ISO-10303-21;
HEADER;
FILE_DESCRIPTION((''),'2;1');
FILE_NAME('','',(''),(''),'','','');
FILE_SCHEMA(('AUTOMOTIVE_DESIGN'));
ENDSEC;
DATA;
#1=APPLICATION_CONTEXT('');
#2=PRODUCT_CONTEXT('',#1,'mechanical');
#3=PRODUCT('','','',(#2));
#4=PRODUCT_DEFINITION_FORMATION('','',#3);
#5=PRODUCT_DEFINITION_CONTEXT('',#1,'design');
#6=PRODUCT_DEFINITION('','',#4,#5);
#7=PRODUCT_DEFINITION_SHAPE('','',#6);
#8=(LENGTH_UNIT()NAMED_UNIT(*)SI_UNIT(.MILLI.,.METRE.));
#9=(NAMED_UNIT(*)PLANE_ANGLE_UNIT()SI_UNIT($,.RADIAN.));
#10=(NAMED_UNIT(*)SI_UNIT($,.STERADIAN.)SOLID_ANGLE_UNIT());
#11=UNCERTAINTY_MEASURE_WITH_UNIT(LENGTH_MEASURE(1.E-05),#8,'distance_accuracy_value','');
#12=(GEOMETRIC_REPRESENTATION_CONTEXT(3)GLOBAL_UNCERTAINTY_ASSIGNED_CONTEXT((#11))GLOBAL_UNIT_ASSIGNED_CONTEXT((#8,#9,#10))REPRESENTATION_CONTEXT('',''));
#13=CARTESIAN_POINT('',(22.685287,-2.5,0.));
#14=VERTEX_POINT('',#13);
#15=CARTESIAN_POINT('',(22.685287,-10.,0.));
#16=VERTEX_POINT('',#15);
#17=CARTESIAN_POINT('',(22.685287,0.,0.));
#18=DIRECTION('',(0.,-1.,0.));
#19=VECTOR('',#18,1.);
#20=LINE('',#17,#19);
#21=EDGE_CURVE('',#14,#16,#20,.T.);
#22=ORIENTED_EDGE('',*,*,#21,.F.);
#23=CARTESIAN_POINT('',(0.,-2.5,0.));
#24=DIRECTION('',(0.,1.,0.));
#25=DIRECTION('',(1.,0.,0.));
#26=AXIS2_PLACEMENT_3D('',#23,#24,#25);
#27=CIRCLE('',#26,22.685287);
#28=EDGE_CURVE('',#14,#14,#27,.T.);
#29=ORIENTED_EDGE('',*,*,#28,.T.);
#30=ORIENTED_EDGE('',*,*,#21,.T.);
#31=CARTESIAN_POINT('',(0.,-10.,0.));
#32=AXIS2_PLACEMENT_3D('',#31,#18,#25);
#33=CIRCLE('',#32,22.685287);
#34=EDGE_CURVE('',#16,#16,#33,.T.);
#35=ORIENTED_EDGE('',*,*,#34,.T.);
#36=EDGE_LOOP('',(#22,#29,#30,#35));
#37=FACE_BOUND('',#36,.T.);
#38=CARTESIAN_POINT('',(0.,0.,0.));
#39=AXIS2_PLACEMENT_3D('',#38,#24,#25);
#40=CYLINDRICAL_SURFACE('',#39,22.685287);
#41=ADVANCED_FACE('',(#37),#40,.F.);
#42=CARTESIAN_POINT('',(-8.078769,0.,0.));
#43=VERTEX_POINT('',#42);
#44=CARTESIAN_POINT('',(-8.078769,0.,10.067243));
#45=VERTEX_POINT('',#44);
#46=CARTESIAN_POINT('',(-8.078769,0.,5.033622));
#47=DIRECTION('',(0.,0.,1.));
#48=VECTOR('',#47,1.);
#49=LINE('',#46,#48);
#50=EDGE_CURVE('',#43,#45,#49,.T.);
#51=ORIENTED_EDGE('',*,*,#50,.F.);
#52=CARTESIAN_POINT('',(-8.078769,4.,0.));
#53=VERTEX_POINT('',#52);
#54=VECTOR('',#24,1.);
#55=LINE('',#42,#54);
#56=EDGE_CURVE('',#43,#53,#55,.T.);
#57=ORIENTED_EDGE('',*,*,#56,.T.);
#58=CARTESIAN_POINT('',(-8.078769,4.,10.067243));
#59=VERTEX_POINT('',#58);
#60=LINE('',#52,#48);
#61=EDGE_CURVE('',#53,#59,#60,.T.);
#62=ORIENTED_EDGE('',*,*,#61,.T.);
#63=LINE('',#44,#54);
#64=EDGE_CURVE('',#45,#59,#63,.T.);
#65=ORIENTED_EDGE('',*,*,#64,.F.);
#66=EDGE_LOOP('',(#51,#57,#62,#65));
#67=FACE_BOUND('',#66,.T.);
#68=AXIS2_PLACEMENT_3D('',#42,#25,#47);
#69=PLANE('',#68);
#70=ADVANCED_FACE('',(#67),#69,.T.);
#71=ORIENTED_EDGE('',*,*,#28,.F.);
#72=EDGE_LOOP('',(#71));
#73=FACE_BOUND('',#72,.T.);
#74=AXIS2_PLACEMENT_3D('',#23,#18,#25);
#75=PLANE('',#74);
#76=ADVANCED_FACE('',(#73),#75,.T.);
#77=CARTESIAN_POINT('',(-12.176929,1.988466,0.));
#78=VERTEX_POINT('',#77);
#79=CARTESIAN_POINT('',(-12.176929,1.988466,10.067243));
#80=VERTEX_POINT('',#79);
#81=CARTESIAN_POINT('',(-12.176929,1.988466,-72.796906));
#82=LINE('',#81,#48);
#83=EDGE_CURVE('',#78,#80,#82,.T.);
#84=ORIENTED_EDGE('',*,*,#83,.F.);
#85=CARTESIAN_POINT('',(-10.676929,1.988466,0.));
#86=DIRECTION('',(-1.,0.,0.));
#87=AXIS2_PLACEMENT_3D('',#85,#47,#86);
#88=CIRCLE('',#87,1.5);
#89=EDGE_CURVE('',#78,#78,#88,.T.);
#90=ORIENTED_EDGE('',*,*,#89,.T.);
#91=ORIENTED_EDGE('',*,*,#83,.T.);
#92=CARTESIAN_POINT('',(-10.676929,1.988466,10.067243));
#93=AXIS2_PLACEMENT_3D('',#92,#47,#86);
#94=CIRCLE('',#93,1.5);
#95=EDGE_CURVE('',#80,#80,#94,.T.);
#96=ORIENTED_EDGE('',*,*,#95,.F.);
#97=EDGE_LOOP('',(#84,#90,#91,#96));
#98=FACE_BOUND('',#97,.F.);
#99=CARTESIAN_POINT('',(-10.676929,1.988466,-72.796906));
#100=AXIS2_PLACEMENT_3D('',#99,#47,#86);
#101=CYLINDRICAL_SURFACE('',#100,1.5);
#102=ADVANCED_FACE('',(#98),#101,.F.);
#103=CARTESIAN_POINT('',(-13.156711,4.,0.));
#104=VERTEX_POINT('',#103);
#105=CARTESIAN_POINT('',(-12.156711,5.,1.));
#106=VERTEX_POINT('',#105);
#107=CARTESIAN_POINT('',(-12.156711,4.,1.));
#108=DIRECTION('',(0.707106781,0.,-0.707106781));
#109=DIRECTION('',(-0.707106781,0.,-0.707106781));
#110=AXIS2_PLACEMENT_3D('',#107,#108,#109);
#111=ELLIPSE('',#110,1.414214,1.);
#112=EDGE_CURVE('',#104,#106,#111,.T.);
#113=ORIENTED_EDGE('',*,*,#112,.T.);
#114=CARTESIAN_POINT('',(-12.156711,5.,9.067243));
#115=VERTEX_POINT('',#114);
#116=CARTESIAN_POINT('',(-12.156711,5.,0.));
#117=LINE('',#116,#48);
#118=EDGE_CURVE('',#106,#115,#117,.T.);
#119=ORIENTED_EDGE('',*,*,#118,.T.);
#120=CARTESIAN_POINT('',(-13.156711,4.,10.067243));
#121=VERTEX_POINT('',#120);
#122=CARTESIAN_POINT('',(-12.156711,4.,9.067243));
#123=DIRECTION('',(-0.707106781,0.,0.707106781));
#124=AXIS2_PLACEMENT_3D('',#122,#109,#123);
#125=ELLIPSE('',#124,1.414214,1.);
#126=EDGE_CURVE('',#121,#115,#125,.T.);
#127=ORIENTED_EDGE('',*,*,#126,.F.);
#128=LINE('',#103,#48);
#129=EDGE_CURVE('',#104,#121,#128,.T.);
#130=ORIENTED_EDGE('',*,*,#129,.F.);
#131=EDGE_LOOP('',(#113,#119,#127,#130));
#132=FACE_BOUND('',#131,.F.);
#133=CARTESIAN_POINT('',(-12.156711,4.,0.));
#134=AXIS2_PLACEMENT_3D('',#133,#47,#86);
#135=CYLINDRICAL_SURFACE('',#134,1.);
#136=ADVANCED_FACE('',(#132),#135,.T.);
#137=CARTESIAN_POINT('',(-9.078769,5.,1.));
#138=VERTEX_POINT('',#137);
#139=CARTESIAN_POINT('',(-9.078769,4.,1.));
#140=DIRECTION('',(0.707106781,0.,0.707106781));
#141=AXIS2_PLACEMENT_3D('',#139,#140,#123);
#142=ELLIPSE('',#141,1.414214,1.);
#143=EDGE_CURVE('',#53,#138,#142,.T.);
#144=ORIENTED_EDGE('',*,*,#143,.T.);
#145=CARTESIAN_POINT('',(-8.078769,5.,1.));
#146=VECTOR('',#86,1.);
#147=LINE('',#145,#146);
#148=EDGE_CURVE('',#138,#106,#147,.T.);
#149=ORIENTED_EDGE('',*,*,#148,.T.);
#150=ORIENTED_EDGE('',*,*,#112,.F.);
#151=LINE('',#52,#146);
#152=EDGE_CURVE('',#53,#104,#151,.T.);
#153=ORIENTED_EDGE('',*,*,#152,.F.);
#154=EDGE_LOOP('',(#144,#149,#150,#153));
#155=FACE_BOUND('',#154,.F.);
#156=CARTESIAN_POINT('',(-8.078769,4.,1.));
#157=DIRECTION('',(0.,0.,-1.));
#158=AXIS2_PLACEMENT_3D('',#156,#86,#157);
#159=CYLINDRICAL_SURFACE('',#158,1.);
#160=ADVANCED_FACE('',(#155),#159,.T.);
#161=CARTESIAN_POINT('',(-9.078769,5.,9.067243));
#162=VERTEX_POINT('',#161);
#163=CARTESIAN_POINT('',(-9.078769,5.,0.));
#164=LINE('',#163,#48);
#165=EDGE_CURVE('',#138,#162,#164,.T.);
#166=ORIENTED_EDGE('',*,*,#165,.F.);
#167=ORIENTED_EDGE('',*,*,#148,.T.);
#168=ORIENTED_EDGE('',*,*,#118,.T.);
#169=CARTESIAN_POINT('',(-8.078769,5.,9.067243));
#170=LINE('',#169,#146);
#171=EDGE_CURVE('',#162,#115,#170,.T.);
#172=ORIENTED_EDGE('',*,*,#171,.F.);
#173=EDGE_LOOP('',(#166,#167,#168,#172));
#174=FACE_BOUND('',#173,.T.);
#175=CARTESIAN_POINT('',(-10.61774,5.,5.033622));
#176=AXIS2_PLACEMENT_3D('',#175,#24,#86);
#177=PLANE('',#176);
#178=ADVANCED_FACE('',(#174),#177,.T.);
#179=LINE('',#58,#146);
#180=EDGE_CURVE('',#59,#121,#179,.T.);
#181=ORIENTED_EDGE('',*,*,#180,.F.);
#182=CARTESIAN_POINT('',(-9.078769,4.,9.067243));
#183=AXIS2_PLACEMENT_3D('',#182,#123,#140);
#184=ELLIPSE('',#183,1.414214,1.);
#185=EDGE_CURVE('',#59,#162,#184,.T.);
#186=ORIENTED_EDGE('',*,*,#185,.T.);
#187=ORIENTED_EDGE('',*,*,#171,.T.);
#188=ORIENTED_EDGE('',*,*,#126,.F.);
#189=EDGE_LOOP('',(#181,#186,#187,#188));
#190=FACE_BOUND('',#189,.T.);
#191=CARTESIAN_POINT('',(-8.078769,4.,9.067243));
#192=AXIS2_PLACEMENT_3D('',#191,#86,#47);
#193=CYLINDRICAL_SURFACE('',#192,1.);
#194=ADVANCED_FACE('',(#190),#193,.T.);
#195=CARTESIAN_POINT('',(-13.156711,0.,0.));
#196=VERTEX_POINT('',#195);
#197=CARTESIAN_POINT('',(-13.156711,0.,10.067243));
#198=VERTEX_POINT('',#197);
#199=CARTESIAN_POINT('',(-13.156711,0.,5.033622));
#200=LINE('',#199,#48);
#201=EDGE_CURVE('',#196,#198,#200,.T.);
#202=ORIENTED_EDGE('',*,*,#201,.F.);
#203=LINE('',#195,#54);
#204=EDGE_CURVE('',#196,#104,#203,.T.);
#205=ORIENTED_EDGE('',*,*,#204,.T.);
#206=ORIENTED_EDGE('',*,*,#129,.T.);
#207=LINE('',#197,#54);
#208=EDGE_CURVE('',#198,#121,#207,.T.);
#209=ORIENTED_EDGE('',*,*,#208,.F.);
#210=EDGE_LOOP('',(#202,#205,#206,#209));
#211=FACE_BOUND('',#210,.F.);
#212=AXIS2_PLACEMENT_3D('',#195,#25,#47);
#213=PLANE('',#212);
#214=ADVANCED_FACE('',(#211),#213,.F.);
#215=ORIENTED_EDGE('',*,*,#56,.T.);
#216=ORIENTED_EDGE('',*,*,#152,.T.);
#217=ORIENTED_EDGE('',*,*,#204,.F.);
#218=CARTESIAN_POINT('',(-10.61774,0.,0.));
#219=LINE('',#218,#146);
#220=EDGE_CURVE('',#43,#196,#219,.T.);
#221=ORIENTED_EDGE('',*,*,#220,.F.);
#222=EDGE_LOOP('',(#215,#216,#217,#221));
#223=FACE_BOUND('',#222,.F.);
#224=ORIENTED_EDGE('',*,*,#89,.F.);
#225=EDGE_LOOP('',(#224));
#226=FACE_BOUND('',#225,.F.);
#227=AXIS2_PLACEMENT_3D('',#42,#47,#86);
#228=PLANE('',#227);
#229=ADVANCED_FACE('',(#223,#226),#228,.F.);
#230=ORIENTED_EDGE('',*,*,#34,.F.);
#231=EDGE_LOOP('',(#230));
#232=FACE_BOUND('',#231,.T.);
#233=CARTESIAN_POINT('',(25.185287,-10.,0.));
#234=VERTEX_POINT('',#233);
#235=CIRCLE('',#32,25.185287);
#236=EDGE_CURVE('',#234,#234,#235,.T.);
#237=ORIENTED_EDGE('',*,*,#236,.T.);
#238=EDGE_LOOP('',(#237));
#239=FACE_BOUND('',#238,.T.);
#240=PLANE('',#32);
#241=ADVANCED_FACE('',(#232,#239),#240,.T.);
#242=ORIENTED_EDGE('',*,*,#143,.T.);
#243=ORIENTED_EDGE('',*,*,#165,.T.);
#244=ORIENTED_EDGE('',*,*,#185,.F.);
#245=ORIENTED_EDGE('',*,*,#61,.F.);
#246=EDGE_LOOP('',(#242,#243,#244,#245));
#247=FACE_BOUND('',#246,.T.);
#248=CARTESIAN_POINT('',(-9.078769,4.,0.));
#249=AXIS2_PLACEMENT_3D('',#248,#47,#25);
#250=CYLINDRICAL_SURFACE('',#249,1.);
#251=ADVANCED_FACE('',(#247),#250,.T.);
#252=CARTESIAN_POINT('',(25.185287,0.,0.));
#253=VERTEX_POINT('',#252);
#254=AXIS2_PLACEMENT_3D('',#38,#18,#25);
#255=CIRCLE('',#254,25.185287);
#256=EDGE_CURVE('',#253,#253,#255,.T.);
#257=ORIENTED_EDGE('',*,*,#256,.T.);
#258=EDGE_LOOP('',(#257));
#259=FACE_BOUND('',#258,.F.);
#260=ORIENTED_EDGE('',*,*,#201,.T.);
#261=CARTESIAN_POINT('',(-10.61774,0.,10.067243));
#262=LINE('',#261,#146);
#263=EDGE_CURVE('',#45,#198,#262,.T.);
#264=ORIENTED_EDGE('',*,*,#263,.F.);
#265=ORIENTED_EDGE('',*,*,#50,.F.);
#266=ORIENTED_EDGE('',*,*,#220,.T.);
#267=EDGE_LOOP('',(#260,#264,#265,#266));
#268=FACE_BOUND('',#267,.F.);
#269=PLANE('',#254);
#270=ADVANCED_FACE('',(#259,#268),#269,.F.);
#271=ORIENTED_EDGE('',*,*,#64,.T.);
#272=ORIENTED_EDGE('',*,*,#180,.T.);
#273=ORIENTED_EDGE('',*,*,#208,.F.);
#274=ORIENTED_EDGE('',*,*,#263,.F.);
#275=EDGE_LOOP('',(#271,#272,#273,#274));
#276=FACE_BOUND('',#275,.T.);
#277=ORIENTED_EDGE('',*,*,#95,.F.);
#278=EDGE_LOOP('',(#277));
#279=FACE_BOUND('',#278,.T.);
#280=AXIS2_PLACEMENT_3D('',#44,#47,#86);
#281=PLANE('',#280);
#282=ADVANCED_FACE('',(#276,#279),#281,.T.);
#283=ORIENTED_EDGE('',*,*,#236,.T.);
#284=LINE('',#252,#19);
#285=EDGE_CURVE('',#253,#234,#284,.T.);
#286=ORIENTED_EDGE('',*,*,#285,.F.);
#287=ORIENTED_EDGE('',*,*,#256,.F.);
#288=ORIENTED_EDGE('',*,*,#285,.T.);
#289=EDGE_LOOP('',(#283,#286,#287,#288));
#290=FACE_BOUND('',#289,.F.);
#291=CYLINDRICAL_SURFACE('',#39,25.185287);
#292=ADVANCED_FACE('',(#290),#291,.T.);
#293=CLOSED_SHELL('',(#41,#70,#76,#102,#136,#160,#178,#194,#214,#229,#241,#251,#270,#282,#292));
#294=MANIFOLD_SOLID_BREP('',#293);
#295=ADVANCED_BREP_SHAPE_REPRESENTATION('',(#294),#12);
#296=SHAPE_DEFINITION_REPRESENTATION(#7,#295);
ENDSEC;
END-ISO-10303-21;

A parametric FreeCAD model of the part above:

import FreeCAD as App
import Part
import Sketcher

V = App.Vector


def edges_at(feature, points):
    """Names of the edges that pass closest to the given points."""
    edges = feature.Shape.Edges
    near = lambda p: min(range(len(edges)), key=lambda i: edges[i].distToShape(Part.Vertex(*p))[0])
    return sorted({f"Edge{near(p) + 1}" for p in points})


def faces_at(feature, points):
    """Names of the faces that lie closest to the given points."""
    faces = feature.Shape.Faces
    near = lambda p: min(range(len(faces)), key=lambda i: faces[i].distToShape(Part.Vertex(*p))[0])
    return sorted({f"Face{near(p) + 1}" for p in points})


def add_polygon(sketch, points):
    """Adds a closed chain of lines whose ends are joined by coincident constraints."""
    first, n = sketch.GeometryCount, len(points)
    for a, b in zip(points, points[1:] + points[:1]):
        sketch.addGeometry(Part.LineSegment(App.Vector(*a, 0), App.Vector(*b, 0)), False)
    for i in range(n):
        sketch.addConstraint(Sketcher.Constraint("Coincident", first + i, 2, first + (i + 1) % n, 1))

doc = App.newDocument("Part")
body = doc.addObject("PartDesign::Body", "Body")

sketch1 = body.newObject("Sketcher::SketchObject", "Sketch")
sketch1.AttachmentSupport = (doc.getObject("XZ_Plane"), [""])
sketch1.MapMode = "FlatFace"
sketch1.addGeometry(Part.Circle(V(0, 0, 0), V(0, 0, 1), 25), False)
sketch1.addConstraint([
    Sketcher.Constraint("Coincident", 0, 3, -1, 1),
    Sketcher.Constraint("Diameter", 0, 50.370575),
])
pad1 = body.newObject("PartDesign::Pad", "Pad")
pad1.Profile = sketch1
pad1.Length = 10
doc.recompute()

thickness = body.newObject("PartDesign::Thickness", "Thickness")
thickness.Base = (pad1, faces_at(pad1, [(0, -10, 0)]))
thickness.Value = 2.5
thickness.Reversed = True
thickness.Join = "Arc"

sketch2 = body.newObject("Sketcher::SketchObject", "Sketch001")
sketch2.AttachmentSupport = (doc.getObject("XZ_Plane"), [""])
sketch2.MapMode = "FlatFace"
add_polygon(sketch2, [(-8, 10), (-8, 0), (-13, 0), (-13, 10)])
sketch2.addConstraint([
    Sketcher.Constraint("Vertical", 0),
    Sketcher.Constraint("Horizontal", 1),
    Sketcher.Constraint("Vertical", 2),
    Sketcher.Constraint("Horizontal", 3),
    Sketcher.Constraint("PointOnObject", 0, 2, -1),
    Sketcher.Constraint("DistanceX", 1, 2, 1, 1, 5.077942),
    Sketcher.Constraint("DistanceY", 0, 2, 0, 1, 10.067243),
    Sketcher.Constraint("DistanceX", 0, 2, -1, 1, 8.078769),
])
pad2 = body.newObject("PartDesign::Pad", "Pad001")
pad2.Profile = sketch2
pad2.Length = 5
pad2.Reversed = True
doc.recompute()

fillet = body.newObject("PartDesign::Fillet", "Fillet")
fillet.Base = (pad2, edges_at(pad2, [
    (-8.079, 5, 5.034),
    (-10.618, 5, 0),
    (-13.157, 5, 5.034),
    (-10.618, 5, 10.067),
]))
fillet.Radius = 1

sketch3 = body.newObject("Sketcher::SketchObject", "Sketch002")
sketch3.AttachmentSupport = (doc.getObject("XY_Plane"), [""])
sketch3.MapMode = "FlatFace"
sketch3.addGeometry(Part.Circle(V(-10.7, 2, 0), V(0, 0, 1), 1.5), False)
sketch3.addConstraint([
    Sketcher.Constraint("Diameter", 0, 3.0),
    Sketcher.Constraint("DistanceX", 0, 3, -1, 1, 10.676929),
    Sketcher.Constraint("DistanceY", -1, 1, 0, 3, 1.988466),
])
doc.recompute()
hole = body.newObject("PartDesign::Hole", "Hole")
hole.Profile = sketch3
hole.ThreadType = "None"
hole.Diameter = 3
hole.DepthType = "ThroughAll"
hole.Reversed = True

doc.recompute()
